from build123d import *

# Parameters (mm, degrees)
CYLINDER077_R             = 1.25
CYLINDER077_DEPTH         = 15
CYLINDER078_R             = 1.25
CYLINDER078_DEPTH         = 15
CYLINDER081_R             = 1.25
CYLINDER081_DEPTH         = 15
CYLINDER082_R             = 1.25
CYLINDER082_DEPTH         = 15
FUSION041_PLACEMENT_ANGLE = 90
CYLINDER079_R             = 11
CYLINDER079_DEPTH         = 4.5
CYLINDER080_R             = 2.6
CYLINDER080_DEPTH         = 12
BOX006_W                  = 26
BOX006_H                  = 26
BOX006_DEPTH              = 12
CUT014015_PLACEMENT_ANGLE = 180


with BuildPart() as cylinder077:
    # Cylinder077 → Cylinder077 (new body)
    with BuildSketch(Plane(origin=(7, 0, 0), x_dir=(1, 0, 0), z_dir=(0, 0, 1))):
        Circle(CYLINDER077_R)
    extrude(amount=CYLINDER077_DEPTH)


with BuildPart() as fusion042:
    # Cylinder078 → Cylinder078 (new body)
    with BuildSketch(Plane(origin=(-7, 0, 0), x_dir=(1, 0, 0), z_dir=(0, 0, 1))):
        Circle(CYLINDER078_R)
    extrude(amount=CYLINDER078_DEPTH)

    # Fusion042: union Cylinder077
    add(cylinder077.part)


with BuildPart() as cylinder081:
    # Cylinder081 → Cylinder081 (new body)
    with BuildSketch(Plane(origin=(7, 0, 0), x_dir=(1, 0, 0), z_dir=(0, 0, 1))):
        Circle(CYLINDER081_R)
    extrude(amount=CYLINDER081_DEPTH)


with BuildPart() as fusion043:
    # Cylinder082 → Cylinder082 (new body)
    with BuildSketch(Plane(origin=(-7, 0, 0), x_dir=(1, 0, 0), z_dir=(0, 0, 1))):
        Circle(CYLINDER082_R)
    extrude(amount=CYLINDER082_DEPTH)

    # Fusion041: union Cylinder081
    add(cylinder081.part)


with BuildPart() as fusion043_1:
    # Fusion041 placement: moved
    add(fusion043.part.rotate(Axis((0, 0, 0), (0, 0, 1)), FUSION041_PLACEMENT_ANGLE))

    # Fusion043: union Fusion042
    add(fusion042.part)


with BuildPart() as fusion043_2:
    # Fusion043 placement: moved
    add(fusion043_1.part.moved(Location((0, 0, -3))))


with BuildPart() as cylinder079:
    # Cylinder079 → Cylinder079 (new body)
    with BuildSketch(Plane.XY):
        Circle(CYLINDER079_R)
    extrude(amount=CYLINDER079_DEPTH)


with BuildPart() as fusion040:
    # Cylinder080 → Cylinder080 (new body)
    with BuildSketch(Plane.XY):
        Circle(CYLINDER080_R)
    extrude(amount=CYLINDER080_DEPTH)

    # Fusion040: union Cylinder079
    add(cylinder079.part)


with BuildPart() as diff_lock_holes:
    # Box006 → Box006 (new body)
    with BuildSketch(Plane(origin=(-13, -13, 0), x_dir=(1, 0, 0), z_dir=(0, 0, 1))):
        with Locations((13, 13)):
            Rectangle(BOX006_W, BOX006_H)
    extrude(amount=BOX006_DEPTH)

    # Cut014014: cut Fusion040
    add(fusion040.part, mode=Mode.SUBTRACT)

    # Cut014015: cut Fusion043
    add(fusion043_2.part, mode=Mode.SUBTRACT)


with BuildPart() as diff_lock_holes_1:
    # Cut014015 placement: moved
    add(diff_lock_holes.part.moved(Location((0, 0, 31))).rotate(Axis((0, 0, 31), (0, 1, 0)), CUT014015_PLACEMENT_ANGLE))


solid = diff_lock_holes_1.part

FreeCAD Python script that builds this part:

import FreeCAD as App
import Part
import Sketcher

V = App.Vector


def add_polygon(sketch, points):
    """Adds a closed chain of lines whose ends are joined by coincident constraints."""
    first, n = sketch.GeometryCount, len(points)
    for a, b in zip(points, points[1:] + points[:1]):
        sketch.addGeometry(Part.LineSegment(App.Vector(*a, 0), App.Vector(*b, 0)), False)
    for i in range(n):
        sketch.addConstraint(Sketcher.Constraint("Coincident", first + i, 2, first + (i + 1) % n, 1))

doc = App.newDocument("Part")
body = doc.addObject("PartDesign::Body", "Body")

sketch1 = doc.addObject("Sketcher::SketchObject", "Sketch")
body.addObject(sketch1)
sketch1.AttachmentSupport = (doc.XY_Plane, [""])
sketch1.MapMode = "FlatFace"
sketch1.addGeometry(Part.Circle(V(7, 0, 0), V(0, 0, 1), 1.2), False)
sketch1.addConstraint([
    Sketcher.Constraint("PointOnObject", 0, 3, -1),
    Sketcher.Constraint("Diameter", 0, 2.5),
    Sketcher.Constraint("DistanceX", -1, 1, 0, 3, 7.0),
])
pad1 = doc.addObject("PartDesign::Pad", "Pad")
body.addObject(pad1)
pad1.Profile = sketch1
pad1.Length = 15
body2 = doc.addObject("PartDesign::Body", "Body001")
body2.AllowCompound = True

sketch2 = doc.addObject("Sketcher::SketchObject", "Sketch001")
body2.addObject(sketch2)
sketch2.AttachmentSupport = (doc.getObject("XY_Plane001"), [""])
sketch2.MapMode = "FlatFace"
sketch2.addGeometry(Part.Circle(V(-7, 0, 0), V(0, 0, 1), 1.2), False)
sketch2.addConstraint([
    Sketcher.Constraint("PointOnObject", 0, 3, -1),
    Sketcher.Constraint("Diameter", 0, 2.5),
    Sketcher.Constraint("DistanceX", 0, 3, -1, 1, 7.0),
])
pad2 = doc.addObject("PartDesign::Pad", "Pad001")
body2.addObject(pad2)
pad2.Profile = sketch2
pad2.Length = 15
doc.recompute()

boolean = doc.addObject("PartDesign::Boolean", "Boolean")
body2.addObject(boolean)
boolean.Type = "Fuse"
boolean.addObjects([body])
body3 = doc.addObject("PartDesign::Body", "Body002")

sketch3 = doc.addObject("Sketcher::SketchObject", "Sketch002")
body3.addObject(sketch3)
sketch3.AttachmentSupport = (doc.getObject("XY_Plane002"), [""])
sketch3.MapMode = "FlatFace"
sketch3.addGeometry(Part.Circle(V(7, 0, 0), V(0, 0, 1), 1.2), False)
sketch3.addConstraint([
    Sketcher.Constraint("PointOnObject", 0, 3, -1),
    Sketcher.Constraint("Diameter", 0, 2.5),
    Sketcher.Constraint("DistanceX", -1, 1, 0, 3, 7.0),
])
pad3 = doc.addObject("PartDesign::Pad", "Pad002")
body3.addObject(pad3)
pad3.Profile = sketch3
pad3.Length = 15
body4 = doc.addObject("PartDesign::Body", "Body003")
body4.AllowCompound = True

sketch4 = doc.addObject("Sketcher::SketchObject", "Sketch003")
body4.addObject(sketch4)
sketch4.AttachmentSupport = (doc.getObject("XY_Plane003"), [""])
sketch4.MapMode = "FlatFace"
sketch4.addGeometry(Part.Circle(V(-7, 0, 0), V(0, 0, 1), 1.2), False)
sketch4.addConstraint([
    Sketcher.Constraint("PointOnObject", 0, 3, -1),
    Sketcher.Constraint("Diameter", 0, 2.5),
    Sketcher.Constraint("DistanceX", 0, 3, -1, 1, 7.0),
])
pad4 = doc.addObject("PartDesign::Pad", "Pad003")
body4.addObject(pad4)
pad4.Profile = sketch4
pad4.Length = 15
doc.recompute()

boolean2 = doc.addObject("PartDesign::Boolean", "Boolean001")
body4.addObject(boolean2)
boolean2.Type = "Fuse"
boolean2.addObjects([body3])
body5 = doc.addObject("PartDesign::Body", "Body004")
body5.AllowCompound = True
doc.recompute()

body4.Placement = App.Placement(V(0, 0, 0), App.Rotation(V(0, 0, 1), 90))
boolean3 = doc.addObject("PartDesign::Boolean", "Boolean002")
body5.addObject(boolean3)
boolean3.Type = "Fuse"
boolean3.addObjects([body4])
doc.recompute()

boolean4 = doc.addObject("PartDesign::Boolean", "Boolean003")
body5.addObject(boolean4)
boolean4.Type = "Fuse"
boolean4.addObjects([body2])
body6 = doc.addObject("PartDesign::Body", "Body005")
body6.AllowCompound = True
doc.recompute()

body5.Placement = App.Placement(V(0, 0, -3), App.Rotation(V(0, 0, 1), 0))
boolean5 = doc.addObject("PartDesign::Boolean", "Boolean004")
body6.addObject(boolean5)
boolean5.Type = "Fuse"
boolean5.addObjects([body5])
body7 = doc.addObject("PartDesign::Body", "Body006")

sketch5 = doc.addObject("Sketcher::SketchObject", "Sketch004")
body7.addObject(sketch5)
sketch5.AttachmentSupport = (doc.getObject("XY_Plane006"), [""])
sketch5.MapMode = "FlatFace"
sketch5.addGeometry(Part.Circle(V(0, 0, 0), V(0, 0, 1), 11), False)
sketch5.addConstraint([
    Sketcher.Constraint("Coincident", 0, 3, -1, 1),
    Sketcher.Constraint("Diameter", 0, 22.0),
])
pad5 = doc.addObject("PartDesign::Pad", "Pad004")
body7.addObject(pad5)
pad5.Profile = sketch5
pad5.Length = 4.5
body8 = doc.addObject("PartDesign::Body", "Body007")

sketch6 = doc.addObject("Sketcher::SketchObject", "Sketch005")
body8.addObject(sketch6)
sketch6.AttachmentSupport = (doc.getObject("XY_Plane007"), [""])
sketch6.MapMode = "FlatFace"
sketch6.addGeometry(Part.Circle(V(0, 0, 0), V(0, 0, 1), 2.6), False)
sketch6.addConstraint([
    Sketcher.Constraint("Coincident", 0, 3, -1, 1),
    Sketcher.Constraint("Diameter", 0, 5.2),
])
pad6 = doc.addObject("PartDesign::Pad", "Pad005")
body8.addObject(pad6)
pad6.Profile = sketch6
pad6.Length = 12
doc.recompute()

boolean6 = doc.addObject("PartDesign::Boolean", "Boolean005")
body8.addObject(boolean6)
boolean6.Type = "Fuse"
boolean6.addObjects([body7])
body9 = doc.addObject("PartDesign::Body", "Body008")

sketch7 = doc.addObject("Sketcher::SketchObject", "Sketch006")
body9.addObject(sketch7)
sketch7.AttachmentSupport = (doc.getObject("XY_Plane008"), [""])
sketch7.MapMode = "FlatFace"
add_polygon(sketch7, [(-13, 13), (-13, -13), (13, -13), (13, 13)])
sketch7.addConstraint([
    Sketcher.Constraint("Vertical", 0),
    Sketcher.Constraint("Horizontal", 1),
    Sketcher.Constraint("Vertical", 2),
    Sketcher.Constraint("Horizontal", 3),
    Sketcher.Constraint("Symmetric", 0, 2, 2, 2, -1, 1),
    Sketcher.Constraint("Equal", 3, 0),
    Sketcher.Constraint("DistanceX", 1, 1, 1, 2, 26.0),
])
pad7 = doc.addObject("PartDesign::Pad", "Pad006")
body9.addObject(pad7)
pad7.Profile = sketch7
pad7.Length = 12
doc.recompute()

boolean7 = doc.addObject("PartDesign::Boolean", "Boolean006")
body9.addObject(boolean7)
boolean7.Type = "Cut"
boolean7.addObjects([body8])
doc.recompute()

boolean8 = doc.addObject("PartDesign::Boolean", "Boolean007")
body9.addObject(boolean8)
boolean8.Type = "Cut"
boolean8.addObjects([body6])
body10 = doc.addObject("PartDesign::Body", "Body009")
doc.recompute()

body9.Placement = App.Placement(V(0, 0, 31), App.Rotation(V(0, 1, 0), 180))
boolean9 = doc.addObject("PartDesign::Boolean", "Boolean008")
body10.addObject(boolean9)
boolean9.Type = "Fuse"
boolean9.addObjects([body9])

doc.recompute()
